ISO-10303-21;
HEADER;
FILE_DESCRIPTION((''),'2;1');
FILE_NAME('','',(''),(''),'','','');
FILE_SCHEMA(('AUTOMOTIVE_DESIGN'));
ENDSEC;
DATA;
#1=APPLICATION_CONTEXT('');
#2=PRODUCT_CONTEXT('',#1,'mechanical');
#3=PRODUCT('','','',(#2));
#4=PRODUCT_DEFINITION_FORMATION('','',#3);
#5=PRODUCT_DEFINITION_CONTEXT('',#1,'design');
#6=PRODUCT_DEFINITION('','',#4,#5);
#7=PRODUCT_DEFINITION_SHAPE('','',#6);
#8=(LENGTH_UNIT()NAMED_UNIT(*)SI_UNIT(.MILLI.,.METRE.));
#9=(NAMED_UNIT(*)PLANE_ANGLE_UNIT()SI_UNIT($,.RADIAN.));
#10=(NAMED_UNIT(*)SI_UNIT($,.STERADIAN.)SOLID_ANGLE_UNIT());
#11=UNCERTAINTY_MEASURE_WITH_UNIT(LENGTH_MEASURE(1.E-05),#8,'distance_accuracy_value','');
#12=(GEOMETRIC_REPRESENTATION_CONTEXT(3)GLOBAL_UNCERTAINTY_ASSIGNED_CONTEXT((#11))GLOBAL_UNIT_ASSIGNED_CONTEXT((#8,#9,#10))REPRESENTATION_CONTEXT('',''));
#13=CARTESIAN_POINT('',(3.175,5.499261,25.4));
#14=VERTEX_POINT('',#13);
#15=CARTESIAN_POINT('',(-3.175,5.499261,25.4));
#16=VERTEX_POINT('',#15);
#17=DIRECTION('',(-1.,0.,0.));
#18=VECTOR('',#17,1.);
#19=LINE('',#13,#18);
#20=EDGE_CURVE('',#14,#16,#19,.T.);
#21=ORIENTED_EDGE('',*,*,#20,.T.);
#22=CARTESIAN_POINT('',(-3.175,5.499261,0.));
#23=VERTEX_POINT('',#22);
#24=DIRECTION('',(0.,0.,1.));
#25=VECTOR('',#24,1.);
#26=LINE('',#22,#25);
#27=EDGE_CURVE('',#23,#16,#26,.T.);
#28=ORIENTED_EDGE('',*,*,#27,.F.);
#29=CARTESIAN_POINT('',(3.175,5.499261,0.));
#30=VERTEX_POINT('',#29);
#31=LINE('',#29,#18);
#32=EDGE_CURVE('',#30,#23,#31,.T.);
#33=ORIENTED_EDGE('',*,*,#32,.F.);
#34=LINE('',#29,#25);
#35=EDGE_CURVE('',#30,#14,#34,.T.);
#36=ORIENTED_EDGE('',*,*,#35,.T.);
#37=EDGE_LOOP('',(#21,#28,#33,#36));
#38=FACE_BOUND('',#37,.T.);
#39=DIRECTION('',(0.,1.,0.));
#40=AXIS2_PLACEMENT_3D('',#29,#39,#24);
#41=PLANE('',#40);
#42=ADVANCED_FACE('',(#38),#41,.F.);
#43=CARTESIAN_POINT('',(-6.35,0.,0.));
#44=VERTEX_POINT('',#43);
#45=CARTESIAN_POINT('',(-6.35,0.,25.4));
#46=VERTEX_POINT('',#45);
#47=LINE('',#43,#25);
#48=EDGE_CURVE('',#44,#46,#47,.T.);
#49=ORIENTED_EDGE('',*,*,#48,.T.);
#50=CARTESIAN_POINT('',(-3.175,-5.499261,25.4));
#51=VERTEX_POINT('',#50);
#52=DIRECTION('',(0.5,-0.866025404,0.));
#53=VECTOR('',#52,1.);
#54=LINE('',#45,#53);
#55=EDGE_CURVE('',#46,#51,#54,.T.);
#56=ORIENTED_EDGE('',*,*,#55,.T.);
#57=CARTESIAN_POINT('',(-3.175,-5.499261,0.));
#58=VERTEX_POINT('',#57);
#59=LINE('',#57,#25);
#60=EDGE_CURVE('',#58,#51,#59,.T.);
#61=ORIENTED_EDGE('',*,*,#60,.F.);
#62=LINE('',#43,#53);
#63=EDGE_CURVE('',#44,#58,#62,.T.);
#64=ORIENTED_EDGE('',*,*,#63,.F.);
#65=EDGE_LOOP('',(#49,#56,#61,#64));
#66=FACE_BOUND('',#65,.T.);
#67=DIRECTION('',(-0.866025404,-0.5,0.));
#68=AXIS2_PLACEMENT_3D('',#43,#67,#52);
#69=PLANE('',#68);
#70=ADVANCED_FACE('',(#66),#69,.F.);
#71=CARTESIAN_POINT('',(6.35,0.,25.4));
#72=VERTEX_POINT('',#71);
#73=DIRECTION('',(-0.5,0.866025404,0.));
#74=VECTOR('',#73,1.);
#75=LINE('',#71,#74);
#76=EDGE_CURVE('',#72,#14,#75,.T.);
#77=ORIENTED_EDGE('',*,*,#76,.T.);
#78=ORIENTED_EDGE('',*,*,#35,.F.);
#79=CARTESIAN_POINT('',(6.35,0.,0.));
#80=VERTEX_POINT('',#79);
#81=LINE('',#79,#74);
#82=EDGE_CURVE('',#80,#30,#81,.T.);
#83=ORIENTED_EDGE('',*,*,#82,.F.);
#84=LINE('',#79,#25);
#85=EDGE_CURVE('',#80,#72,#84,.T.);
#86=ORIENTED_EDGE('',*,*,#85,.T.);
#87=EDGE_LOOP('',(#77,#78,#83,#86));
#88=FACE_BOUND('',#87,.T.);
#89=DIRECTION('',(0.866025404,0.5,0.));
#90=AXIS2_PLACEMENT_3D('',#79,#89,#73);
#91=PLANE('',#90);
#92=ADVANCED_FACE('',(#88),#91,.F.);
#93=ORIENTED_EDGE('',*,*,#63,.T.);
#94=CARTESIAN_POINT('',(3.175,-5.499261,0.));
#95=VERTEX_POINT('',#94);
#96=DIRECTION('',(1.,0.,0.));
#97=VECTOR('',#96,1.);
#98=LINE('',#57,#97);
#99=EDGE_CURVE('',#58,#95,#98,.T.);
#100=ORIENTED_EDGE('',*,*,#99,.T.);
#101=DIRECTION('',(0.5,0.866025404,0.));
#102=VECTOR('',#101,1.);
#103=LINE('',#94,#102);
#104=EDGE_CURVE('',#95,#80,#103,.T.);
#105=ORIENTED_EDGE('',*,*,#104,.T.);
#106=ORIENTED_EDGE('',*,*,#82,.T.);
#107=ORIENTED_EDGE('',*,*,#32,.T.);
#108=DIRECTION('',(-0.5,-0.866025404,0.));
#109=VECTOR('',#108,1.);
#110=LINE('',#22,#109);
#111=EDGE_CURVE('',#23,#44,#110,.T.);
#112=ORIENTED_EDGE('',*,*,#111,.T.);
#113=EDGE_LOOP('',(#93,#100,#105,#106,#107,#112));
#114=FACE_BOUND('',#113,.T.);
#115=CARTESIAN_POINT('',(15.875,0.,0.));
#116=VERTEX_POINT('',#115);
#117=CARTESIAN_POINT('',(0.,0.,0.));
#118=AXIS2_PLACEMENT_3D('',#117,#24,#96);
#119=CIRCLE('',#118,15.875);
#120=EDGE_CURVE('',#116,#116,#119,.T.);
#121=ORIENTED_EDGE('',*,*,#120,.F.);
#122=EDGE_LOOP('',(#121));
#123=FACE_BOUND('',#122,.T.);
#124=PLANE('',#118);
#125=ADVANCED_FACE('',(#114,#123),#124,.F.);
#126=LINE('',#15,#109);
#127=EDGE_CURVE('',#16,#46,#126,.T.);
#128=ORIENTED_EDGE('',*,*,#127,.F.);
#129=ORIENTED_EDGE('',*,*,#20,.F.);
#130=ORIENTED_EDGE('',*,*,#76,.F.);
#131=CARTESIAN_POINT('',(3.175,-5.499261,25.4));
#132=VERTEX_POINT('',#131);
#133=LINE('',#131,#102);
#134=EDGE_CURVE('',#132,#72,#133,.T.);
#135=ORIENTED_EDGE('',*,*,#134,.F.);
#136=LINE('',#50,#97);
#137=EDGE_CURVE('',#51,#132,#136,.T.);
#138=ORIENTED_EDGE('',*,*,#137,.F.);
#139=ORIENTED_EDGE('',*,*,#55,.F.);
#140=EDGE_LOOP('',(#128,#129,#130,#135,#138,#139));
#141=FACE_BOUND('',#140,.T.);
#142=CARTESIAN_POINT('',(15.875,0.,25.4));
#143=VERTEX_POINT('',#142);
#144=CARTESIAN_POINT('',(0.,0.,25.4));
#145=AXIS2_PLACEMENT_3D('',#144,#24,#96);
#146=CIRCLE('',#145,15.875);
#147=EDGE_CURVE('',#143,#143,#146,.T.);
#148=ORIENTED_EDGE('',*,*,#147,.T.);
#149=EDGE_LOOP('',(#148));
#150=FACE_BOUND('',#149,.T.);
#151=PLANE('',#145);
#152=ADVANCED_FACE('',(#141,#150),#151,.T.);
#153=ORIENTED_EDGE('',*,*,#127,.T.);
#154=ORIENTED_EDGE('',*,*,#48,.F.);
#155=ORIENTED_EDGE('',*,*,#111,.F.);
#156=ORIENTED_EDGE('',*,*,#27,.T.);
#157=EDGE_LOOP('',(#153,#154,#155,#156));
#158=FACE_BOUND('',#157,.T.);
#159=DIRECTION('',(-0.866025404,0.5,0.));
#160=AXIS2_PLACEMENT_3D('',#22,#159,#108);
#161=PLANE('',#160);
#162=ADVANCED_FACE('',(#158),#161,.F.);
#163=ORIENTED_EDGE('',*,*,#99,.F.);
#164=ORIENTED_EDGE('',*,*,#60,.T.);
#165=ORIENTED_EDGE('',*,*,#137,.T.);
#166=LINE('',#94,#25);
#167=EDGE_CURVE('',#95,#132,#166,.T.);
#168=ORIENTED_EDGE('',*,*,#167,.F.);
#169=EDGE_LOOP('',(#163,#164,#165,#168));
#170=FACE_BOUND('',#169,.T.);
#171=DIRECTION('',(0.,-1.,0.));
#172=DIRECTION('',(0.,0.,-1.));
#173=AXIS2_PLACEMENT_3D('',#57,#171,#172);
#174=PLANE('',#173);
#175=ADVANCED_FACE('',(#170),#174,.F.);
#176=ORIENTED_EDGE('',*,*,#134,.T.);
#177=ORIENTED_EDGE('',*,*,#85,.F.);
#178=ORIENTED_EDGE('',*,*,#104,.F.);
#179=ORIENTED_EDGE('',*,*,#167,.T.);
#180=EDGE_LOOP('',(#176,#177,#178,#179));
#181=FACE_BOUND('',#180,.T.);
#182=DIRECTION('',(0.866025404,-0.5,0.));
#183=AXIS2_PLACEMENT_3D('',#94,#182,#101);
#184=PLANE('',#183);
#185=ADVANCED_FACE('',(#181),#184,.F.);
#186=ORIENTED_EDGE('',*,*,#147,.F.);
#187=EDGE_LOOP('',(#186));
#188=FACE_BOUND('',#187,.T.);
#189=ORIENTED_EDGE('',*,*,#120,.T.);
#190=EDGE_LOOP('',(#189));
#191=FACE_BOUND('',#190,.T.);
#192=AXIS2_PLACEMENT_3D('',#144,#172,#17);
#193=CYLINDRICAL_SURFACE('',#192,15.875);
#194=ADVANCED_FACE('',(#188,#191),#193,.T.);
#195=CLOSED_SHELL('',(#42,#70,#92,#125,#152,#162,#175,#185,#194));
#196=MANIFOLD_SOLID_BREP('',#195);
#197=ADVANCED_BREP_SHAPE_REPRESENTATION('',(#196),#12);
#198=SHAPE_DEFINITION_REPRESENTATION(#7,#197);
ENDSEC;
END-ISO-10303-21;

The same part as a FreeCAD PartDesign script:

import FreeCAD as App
import Part
import Sketcher
Q = App.Units.Quantity

doc = App.newDocument("Part")
body = doc.addObject("PartDesign::Body", "Body")

# Sketch on XY plane
sketch1 = body.newObject("Sketcher::SketchObject", "Sketch")
sketch1.AttachmentSupport = (doc.getObject("XY_Plane"), [""])
sketch1.MapMode = "FlatFace"
sketch1.addGeometry(Part.Circle(App.Vector(0, 0, 0), App.Vector(0, 0, 1), 16), False)
sketch1.addConstraint(Sketcher.Constraint("Coincident", 0, 3, -1, 1))
sketch1.addConstraint(Sketcher.Constraint("Diameter", 0, Q("1.25 in")))
pad1 = body.newObject("PartDesign::Pad", "Pad")
pad1.Profile = sketch1
pad1.Length = Q("1 in")

# Sketch on XY plane
sketch2 = body.newObject("Sketcher::SketchObject", "Sketch001")
sketch2.AttachmentSupport = (doc.getObject("XY_Plane"), [""])
sketch2.MapMode = "FlatFace"
sketch2.AttachmentOffset = App.Placement(App.Vector(0, 0, 1 * 25.4), App.Rotation())
sketch2.addGeometry(Part.LineSegment(App.Vector(6, 0, 0), App.Vector(3, 5, 0)), False)
sketch2.addGeometry(Part.LineSegment(App.Vector(3, 5, 0), App.Vector(-3, 5, 0)), False)
sketch2.addGeometry(Part.LineSegment(App.Vector(-3, 5, 0), App.Vector(-6, 0, 0)), False)
sketch2.addGeometry(Part.LineSegment(App.Vector(-6, 0, 0), App.Vector(-3, -5, 0)), False)
sketch2.addGeometry(Part.LineSegment(App.Vector(-3, -5, 0), App.Vector(3, -5, 0)), False)
sketch2.addGeometry(Part.LineSegment(App.Vector(3, -5, 0), App.Vector(6, 0, 0)), False)
sketch2.addConstraint(Sketcher.Constraint("Coincident", 0, 2, 1, 1))
sketch2.addConstraint(Sketcher.Constraint("Coincident", 1, 2, 2, 1))
sketch2.addConstraint(Sketcher.Constraint("Coincident", 2, 2, 3, 1))
sketch2.addConstraint(Sketcher.Constraint("Coincident", 3, 2, 4, 1))
sketch2.addConstraint(Sketcher.Constraint("Coincident", 4, 2, 5, 1))
sketch2.addConstraint(Sketcher.Constraint("Coincident", 5, 2, 0, 1))
sketch2.addConstraint(Sketcher.Constraint("Horizontal", 1))
sketch2.addConstraint(Sketcher.Constraint("Horizontal", 4))
sketch2.addConstraint(Sketcher.Constraint("Symmetric", 0, 2, 3, 2, -1, 1))
sketch2.addConstraint(Sketcher.Constraint("Symmetric", 2, 2, 5, 2, -1, 1))
sketch2.addConstraint(Sketcher.Constraint("PointOnObject", 2, 2, -1))
sketch2.addConstraint(Sketcher.Constraint("Parallel", 2, 5))
sketch2.addConstraint(Sketcher.Constraint("Vertical", 1, 2, 3, 2))
sketch2.addConstraint(Sketcher.Constraint("Angle", 0, Q("120 deg")))
sketch2.addConstraint(Sketcher.Constraint("DistanceX", 1, 2, 1, 1, Q("0.25 in")))
sketch2.addConstraint(Sketcher.Constraint("DistanceX", 2, 2, 5, 2, Q("0.5 in")))
pocket1 = body.newObject("PartDesign::Pocket", "Pocket")
pocket1.Profile = sketch2
pocket1.Type = "ThroughAll"

doc.recompute()
